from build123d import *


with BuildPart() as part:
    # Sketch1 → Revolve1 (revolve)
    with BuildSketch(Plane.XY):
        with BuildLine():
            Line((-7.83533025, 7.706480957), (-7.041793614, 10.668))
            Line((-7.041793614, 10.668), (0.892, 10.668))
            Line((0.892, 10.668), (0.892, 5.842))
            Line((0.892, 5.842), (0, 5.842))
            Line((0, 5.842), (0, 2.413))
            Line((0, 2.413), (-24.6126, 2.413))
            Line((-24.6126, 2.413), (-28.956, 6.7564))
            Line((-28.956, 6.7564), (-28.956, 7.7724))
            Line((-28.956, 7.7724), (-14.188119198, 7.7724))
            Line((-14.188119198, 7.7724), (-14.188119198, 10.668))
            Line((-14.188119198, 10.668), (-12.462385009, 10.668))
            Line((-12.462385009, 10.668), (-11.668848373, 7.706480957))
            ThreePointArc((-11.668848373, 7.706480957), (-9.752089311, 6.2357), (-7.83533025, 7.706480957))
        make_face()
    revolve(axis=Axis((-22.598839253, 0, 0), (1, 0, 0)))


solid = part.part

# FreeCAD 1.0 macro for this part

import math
import FreeCAD as App
import Part
import Sketcher
Q = App.Units.Quantity

doc = App.newDocument("Part")
body = doc.addObject("PartDesign::Body", "Body")

# Sketch on XY plane
sketch1 = body.newObject("Sketcher::SketchObject", "Sketch")
sketch1.AttachmentSupport = (doc.getObject("XY_Plane"), [""])
sketch1.MapMode = "FlatFace"
sketch1.addGeometry([
    Part.LineSegment(App.Vector(-7, 10.7, 0), App.Vector(-7.8, 7.7, 0)),  # 0
    Part.ArcOfCircle(Part.Circle(App.Vector(-9.8, 8.2, 0), App.Vector(0, 0, 1), 2), math.radians(-165), math.radians(-15)),  # 1
    Part.LineSegment(App.Vector(-11.7, 7.7, 0), App.Vector(-12.5, 10.7, 0)),  # 2
    Part.LineSegment(App.Vector(-12.5, 10.7, 0), App.Vector(-14.2, 10.7, 0)),  # 3
    Part.LineSegment(App.Vector(-14.2, 10.7, 0), App.Vector(-14.2, 7.8, 0)),  # 4
    Part.LineSegment(App.Vector(-14.2, 7.8, 0), App.Vector(-29, 7.8, 0)),  # 5
    Part.LineSegment(App.Vector(-29, 7.8, 0), App.Vector(-29, 6.8, 0)),  # 6
    Part.LineSegment(App.Vector(-29, 6.8, 0), App.Vector(-24.6, 2.4, 0)),  # 7
    Part.LineSegment(App.Vector(-24.6, 2.4, 0), App.Vector(0, 2.4, 0)),  # 8
    Part.LineSegment(App.Vector(0, 2.4, 0), App.Vector(0, 5.8, 0)),  # 9
    Part.LineSegment(App.Vector(0, 5.8, 0), App.Vector(0.9, 5.8, 0)),  # 10
    Part.LineSegment(App.Vector(0.9, 5.8, 0), App.Vector(0.9, 10.7, 0)),  # 11
    Part.LineSegment(App.Vector(0.9, 10.7, 0), App.Vector(-7, 10.7, 0)),  # 12
], False)
sketch1.addConstraint([
    Sketcher.Constraint("Tangent", 0, 2, 1, 2),
    Sketcher.Constraint("Tangent", 1, 1, 2, 1),
    Sketcher.Constraint("Coincident", 2, 2, 3, 1),
    Sketcher.Constraint("Coincident", 3, 2, 4, 1),
    Sketcher.Constraint("Coincident", 4, 2, 5, 1),
    Sketcher.Constraint("Coincident", 5, 2, 6, 1),
    Sketcher.Constraint("Coincident", 6, 2, 7, 1),
    Sketcher.Constraint("Coincident", 7, 2, 8, 1),
    Sketcher.Constraint("Coincident", 8, 2, 9, 1),
    Sketcher.Constraint("Coincident", 9, 2, 10, 1),
    Sketcher.Constraint("Coincident", 10, 2, 11, 1),
    Sketcher.Constraint("Coincident", 11, 2, 12, 1),
    Sketcher.Constraint("Coincident", 12, 2, 0, 1),
    Sketcher.Constraint("Horizontal", 3),
    Sketcher.Constraint("Vertical", 4),
    Sketcher.Constraint("Horizontal", 5),
    Sketcher.Constraint("Vertical", 6),
    Sketcher.Constraint("Horizontal", 8),
    Sketcher.Constraint("Vertical", 9),
    Sketcher.Constraint("Horizontal", 10),
    Sketcher.Constraint("Vertical", 11),
    Sketcher.Constraint("Horizontal", 12),
    Sketcher.Constraint("PointOnObject", 8, 2, -2),
    Sketcher.Constraint("Horizontal", 0, 2, 1, 1),
    Sketcher.Constraint("Horizontal", 3, 2, 11, 2),
    Sketcher.Constraint("Angle", 0, Q("-105 deg")),
    Sketcher.Constraint("Angle", 7, Q("-45 deg")),
    Sketcher.Constraint("Radius", 1, Q("0.078125 in")),
    Sketcher.Constraint("DistanceY", 6, 2, 6, 1, Q("0.04 in")),
    Sketcher.Constraint("DistanceY", 11, 1, 11, 2, Q("0.19 in")),
    Sketcher.Constraint("DistanceX", 8, 1, 8, 2, Q("0.969 in")),
    Sketcher.Constraint("DistanceY", 4, 2, 4, 1, Q("0.114 in")),
    Sketcher.Constraint("DistanceY", 9, 1, 9, 2, Q("0.135 in")),
    Sketcher.Constraint("DistanceY", -1, 1, 2, 2, Q("0.42 in")),
    Sketcher.Constraint("DistanceX", 10, 1, 10, 2, Q("0.892 mm")),
    Sketcher.Constraint("DistanceX", 5, 2, 5, 1, Q("14.767881 mm")),
    Sketcher.Constraint("Distance", 0, Q("3.06599 mm")),
    Sketcher.Constraint("DistanceX", 3, 2, 3, 1, Q("1.725734 mm")),
])
revolution = body.newObject("PartDesign::Revolution", "Revolution")
revolution.Profile = sketch1
revolution.ReferenceAxis = (sketch1, ["H_Axis"])
revolution.Angle = 360

doc.recompute()
